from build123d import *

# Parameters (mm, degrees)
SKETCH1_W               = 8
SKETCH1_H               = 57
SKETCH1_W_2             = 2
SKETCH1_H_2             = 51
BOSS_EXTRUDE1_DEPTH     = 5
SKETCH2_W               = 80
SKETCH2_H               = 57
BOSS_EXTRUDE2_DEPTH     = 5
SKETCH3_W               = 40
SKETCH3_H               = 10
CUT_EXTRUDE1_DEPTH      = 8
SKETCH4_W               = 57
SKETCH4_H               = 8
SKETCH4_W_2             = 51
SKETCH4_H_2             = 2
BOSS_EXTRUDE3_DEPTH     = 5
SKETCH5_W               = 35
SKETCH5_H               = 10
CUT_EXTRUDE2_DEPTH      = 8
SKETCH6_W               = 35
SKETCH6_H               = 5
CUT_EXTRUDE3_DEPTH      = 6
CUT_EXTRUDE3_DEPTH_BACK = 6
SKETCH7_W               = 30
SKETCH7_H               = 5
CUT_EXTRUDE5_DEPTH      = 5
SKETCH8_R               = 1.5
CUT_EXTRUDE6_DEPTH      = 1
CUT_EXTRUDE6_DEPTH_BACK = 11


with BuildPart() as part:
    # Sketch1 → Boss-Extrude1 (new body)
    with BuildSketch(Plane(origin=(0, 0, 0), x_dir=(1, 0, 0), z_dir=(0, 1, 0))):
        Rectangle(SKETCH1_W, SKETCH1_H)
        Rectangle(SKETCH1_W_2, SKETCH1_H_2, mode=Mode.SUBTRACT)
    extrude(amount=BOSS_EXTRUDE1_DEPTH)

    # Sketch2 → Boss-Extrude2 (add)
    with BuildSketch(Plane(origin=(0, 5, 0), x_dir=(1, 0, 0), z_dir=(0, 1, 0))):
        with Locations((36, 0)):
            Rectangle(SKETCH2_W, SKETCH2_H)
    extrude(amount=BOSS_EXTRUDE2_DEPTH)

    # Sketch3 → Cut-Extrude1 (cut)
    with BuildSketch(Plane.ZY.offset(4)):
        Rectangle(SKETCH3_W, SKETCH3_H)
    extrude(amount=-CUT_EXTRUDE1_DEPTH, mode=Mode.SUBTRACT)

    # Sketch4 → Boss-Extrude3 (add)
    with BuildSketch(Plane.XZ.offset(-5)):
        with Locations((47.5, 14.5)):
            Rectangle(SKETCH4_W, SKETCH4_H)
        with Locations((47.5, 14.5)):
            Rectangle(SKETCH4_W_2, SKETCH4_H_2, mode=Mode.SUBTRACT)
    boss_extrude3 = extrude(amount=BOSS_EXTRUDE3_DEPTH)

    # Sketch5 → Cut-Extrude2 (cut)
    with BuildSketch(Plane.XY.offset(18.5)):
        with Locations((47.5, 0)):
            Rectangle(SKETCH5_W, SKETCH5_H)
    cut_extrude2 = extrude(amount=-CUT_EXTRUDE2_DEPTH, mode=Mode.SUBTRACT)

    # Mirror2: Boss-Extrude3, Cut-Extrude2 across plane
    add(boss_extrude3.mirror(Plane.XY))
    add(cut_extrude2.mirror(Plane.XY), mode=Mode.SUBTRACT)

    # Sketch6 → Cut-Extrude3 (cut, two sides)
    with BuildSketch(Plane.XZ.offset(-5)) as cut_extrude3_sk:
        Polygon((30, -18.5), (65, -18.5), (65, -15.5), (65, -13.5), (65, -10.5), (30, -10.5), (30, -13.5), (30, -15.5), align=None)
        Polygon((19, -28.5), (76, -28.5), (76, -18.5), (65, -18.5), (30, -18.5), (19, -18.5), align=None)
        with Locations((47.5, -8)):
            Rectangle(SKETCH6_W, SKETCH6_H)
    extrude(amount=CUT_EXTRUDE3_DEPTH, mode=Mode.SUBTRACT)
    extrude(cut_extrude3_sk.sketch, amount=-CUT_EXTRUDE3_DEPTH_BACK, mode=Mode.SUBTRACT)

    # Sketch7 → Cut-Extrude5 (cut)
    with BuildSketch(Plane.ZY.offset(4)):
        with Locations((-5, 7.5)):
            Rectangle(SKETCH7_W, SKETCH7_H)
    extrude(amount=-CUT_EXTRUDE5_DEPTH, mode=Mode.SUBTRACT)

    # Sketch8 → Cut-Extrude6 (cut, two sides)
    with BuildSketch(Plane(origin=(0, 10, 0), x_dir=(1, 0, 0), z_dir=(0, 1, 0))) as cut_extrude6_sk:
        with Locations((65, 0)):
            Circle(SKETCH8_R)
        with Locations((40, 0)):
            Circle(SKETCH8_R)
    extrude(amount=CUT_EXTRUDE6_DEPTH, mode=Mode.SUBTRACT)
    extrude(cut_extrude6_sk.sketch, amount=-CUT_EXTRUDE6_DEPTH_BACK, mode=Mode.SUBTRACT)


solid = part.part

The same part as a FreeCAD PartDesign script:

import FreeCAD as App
import Part
import Sketcher
Q = App.Units.Quantity

doc = App.newDocument("Part")
body = doc.addObject("PartDesign::Body", "Body")

# Sketch on XZ plane
sketch1 = body.newObject("Sketcher::SketchObject", "Sketch")
sketch1.AttachmentSupport = (doc.getObject("XZ_Plane"), [""])
sketch1.MapMode = "FlatFace"
sketch1.addGeometry(Part.LineSegment(App.Vector(-4, -28.5, 0), App.Vector(-4, 28.5, 0)), False)
sketch1.addGeometry(Part.LineSegment(App.Vector(-4, 28.5, 0), App.Vector(4, 28.5, 0)), False)
sketch1.addGeometry(Part.LineSegment(App.Vector(4, 28.5, 0), App.Vector(4, -28.5, 0)), False)
sketch1.addGeometry(Part.LineSegment(App.Vector(4, -28.5, 0), App.Vector(-4, -28.5, 0)), False)
sketch1.addGeometry(Part.LineSegment(App.Vector(1, 25.5, 0), App.Vector(-1, 25.5, 0)), False)
sketch1.addGeometry(Part.LineSegment(App.Vector(-1, 25.5, 0), App.Vector(-1, -25.5, 0)), False)
sketch1.addGeometry(Part.LineSegment(App.Vector(-1, -25.5, 0), App.Vector(1, -25.5, 0)), False)
sketch1.addGeometry(Part.LineSegment(App.Vector(1, -25.5, 0), App.Vector(1, 25.5, 0)), False)
sketch1.addConstraint(Sketcher.Constraint("Coincident", 0, 2, 1, 1))
sketch1.addConstraint(Sketcher.Constraint("Coincident", 1, 2, 2, 1))
sketch1.addConstraint(Sketcher.Constraint("Coincident", 2, 2, 3, 1))
sketch1.addConstraint(Sketcher.Constraint("Coincident", 3, 2, 0, 1))
sketch1.addConstraint(Sketcher.Constraint("Coincident", 4, 2, 5, 1))
sketch1.addConstraint(Sketcher.Constraint("Coincident", 5, 2, 6, 1))
sketch1.addConstraint(Sketcher.Constraint("Coincident", 6, 2, 7, 1))
sketch1.addConstraint(Sketcher.Constraint("Coincident", 7, 2, 4, 1))
sketch1.addConstraint(Sketcher.Constraint("Vertical", 0))
sketch1.addConstraint(Sketcher.Constraint("Horizontal", 1))
sketch1.addConstraint(Sketcher.Constraint("Vertical", 2))
sketch1.addConstraint(Sketcher.Constraint("Horizontal", 3))
sketch1.addConstraint(Sketcher.Constraint("Horizontal", 4))
sketch1.addConstraint(Sketcher.Constraint("Vertical", 5))
sketch1.addConstraint(Sketcher.Constraint("Horizontal", 6))
sketch1.addConstraint(Sketcher.Constraint("Vertical", 7))
sketch1.addConstraint(Sketcher.Constraint("Symmetric", 0, 2, 2, 2, -1, 1))
sketch1.addConstraint(Sketcher.Constraint("Symmetric", 4, 2, 6, 2, -1, 1))
sketch1.addConstraint(Sketcher.Constraint("DistanceX", 1, 1, 1, 2, Q("8 mm")))
sketch1.addConstraint(Sketcher.Constraint("DistanceX", 4, 2, 4, 1, Q("2 mm")))
sketch1.addConstraint(Sketcher.Constraint("DistanceY", 0, 1, 0, 2, Q("57 mm")))
sketch1.addConstraint(Sketcher.Constraint("DistanceY", 5, 2, 5, 1, Q("51 mm")))
pad1 = body.newObject("PartDesign::Pad", "Pad")
pad1.Profile = sketch1
pad1.Length = 5
pad1.Reversed = True

# Sketch on XZ plane
sketch2 = body.newObject("Sketcher::SketchObject", "Sketch001")
sketch2.AttachmentSupport = (doc.getObject("XZ_Plane"), [""])
sketch2.MapMode = "FlatFace"
sketch2.AttachmentOffset = App.Placement(App.Vector(0, 0, -5), App.Rotation())
sketch2.addGeometry(Part.LineSegment(App.Vector(-4, -28.5, 0), App.Vector(-4, 28.5, 0)), False)
sketch2.addGeometry(Part.LineSegment(App.Vector(-4, 28.5, 0), App.Vector(76, 28.5, 0)), False)
sketch2.addGeometry(Part.LineSegment(App.Vector(76, 28.5, 0), App.Vector(76, -28.5, 0)), False)
sketch2.addGeometry(Part.LineSegment(App.Vector(76, -28.5, 0), App.Vector(-4, -28.5, 0)), False)
sketch2.addConstraint(Sketcher.Constraint("Coincident", 0, 2, 1, 1))
sketch2.addConstraint(Sketcher.Constraint("Coincident", 1, 2, 2, 1))
sketch2.addConstraint(Sketcher.Constraint("Coincident", 2, 2, 3, 1))
sketch2.addConstraint(Sketcher.Constraint("Coincident", 3, 2, 0, 1))
sketch2.addConstraint(Sketcher.Constraint("Vertical", 0))
sketch2.addConstraint(Sketcher.Constraint("Horizontal", 1))
sketch2.addConstraint(Sketcher.Constraint("Vertical", 2))
sketch2.addConstraint(Sketcher.Constraint("Horizontal", 3))
sketch2.addConstraint(Sketcher.Constraint("DistanceX", 1, 1, 1, 2, Q("80 mm")))
sketch2.addConstraint(Sketcher.Constraint("DistanceY", 0, 1, 0, 2, Q("57 mm")))
sketch2.addConstraint(Sketcher.Constraint("DistanceX", 0, 2, -1, 1, Q("4 mm")))
sketch2.addConstraint(Sketcher.Constraint("DistanceY", -1, 1, 0, 2, Q("28.5 mm")))
pad2 = body.newObject("PartDesign::Pad", "Pad001")
pad2.Profile = sketch2
pad2.Length = 5
pad2.Reversed = True

# Sketch on YZ plane
sketch3 = body.newObject("Sketcher::SketchObject", "Sketch002")
sketch3.AttachmentSupport = (doc.getObject("YZ_Plane"), [""])
sketch3.MapMode = "FlatFace"
sketch3.AttachmentOffset = App.Placement(App.Vector(0, 0, -4), App.Rotation())
sketch3.addGeometry(Part.LineSegment(App.Vector(5, -20, 0), App.Vector(-5, -20, 0)), False)
sketch3.addGeometry(Part.LineSegment(App.Vector(-5, -20, 0), App.Vector(-5, 20, 0)), False)
sketch3.addGeometry(Part.LineSegment(App.Vector(-5, 20, 0), App.Vector(5, 20, 0)), False)
sketch3.addGeometry(Part.LineSegment(App.Vector(5, 20, 0), App.Vector(5, -20, 0)), False)
sketch3.addConstraint(Sketcher.Constraint("Coincident", 0, 2, 1, 1))
sketch3.addConstraint(Sketcher.Constraint("Coincident", 1, 2, 2, 1))
sketch3.addConstraint(Sketcher.Constraint("Coincident", 2, 2, 3, 1))
sketch3.addConstraint(Sketcher.Constraint("Coincident", 3, 2, 0, 1))
sketch3.addConstraint(Sketcher.Constraint("Horizontal", 0))
sketch3.addConstraint(Sketcher.Constraint("Vertical", 1))
sketch3.addConstraint(Sketcher.Constraint("Horizontal", 2))
sketch3.addConstraint(Sketcher.Constraint("Vertical", 3))
sketch3.addConstraint(Sketcher.Constraint("Symmetric", 0, 2, 2, 2, -1, 1))
sketch3.addConstraint(Sketcher.Constraint("DistanceX", 0, 2, 0, 1, Q("10 mm")))
sketch3.addConstraint(Sketcher.Constraint("DistanceY", 1, 1, 1, 2, Q("40 mm")))
pocket1 = body.newObject("PartDesign::Pocket", "Pocket")
pocket1.Profile = sketch3
pocket1.Length = 8
pocket1.Reversed = True

# Sketch on XZ plane
sketch4 = body.newObject("Sketcher::SketchObject", "Sketch003")
sketch4.AttachmentSupport = (doc.getObject("XZ_Plane"), [""])
sketch4.MapMode = "FlatFace"
sketch4.AttachmentOffset = App.Placement(App.Vector(0, 0, -5), App.Rotation())
sketch4.addGeometry(Part.LineSegment(App.Vector(19, 18.5, 0), App.Vector(19, 10.5, 0)), False)
sketch4.addGeometry(Part.LineSegment(App.Vector(19, 10.5, 0), App.Vector(76, 10.5, 0)), False)
sketch4.addGeometry(Part.LineSegment(App.Vector(76, 10.5, 0), App.Vector(76, 18.5, 0)), False)
sketch4.addGeometry(Part.LineSegment(App.Vector(76, 18.5, 0), App.Vector(19, 18.5, 0)), False)
sketch4.addGeometry(Part.LineSegment(App.Vector(73, 13.5, 0), App.Vector(22, 13.5, 0)), False)
sketch4.addGeometry(Part.LineSegment(App.Vector(22, 13.5, 0), App.Vector(22, 15.5, 0)), False)
sketch4.addGeometry(Part.LineSegment(App.Vector(22, 15.5, 0), App.Vector(73, 15.5, 0)), False)
sketch4.addGeometry(Part.LineSegment(App.Vector(73, 15.5, 0), App.Vector(73, 13.5, 0)), False)
sketch4.addConstraint(Sketcher.Constraint("Coincident", 0, 2, 1, 1))
sketch4.addConstraint(Sketcher.Constraint("Coincident", 1, 2, 2, 1))
sketch4.addConstraint(Sketcher.Constraint("Coincident", 2, 2, 3, 1))
sketch4.addConstraint(Sketcher.Constraint("Coincident", 3, 2, 0, 1))
sketch4.addConstraint(Sketcher.Constraint("Coincident", 4, 2, 5, 1))
sketch4.addConstraint(Sketcher.Constraint("Coincident", 5, 2, 6, 1))
sketch4.addConstraint(Sketcher.Constraint("Coincident", 6, 2, 7, 1))
sketch4.addConstraint(Sketcher.Constraint("Coincident", 7, 2, 4, 1))
sketch4.addConstraint(Sketcher.Constraint("Vertical", 0))
sketch4.addConstraint(Sketcher.Constraint("Horizontal", 1))
sketch4.addConstraint(Sketcher.Constraint("Vertical", 2))
sketch4.addConstraint(Sketcher.Constraint("Horizontal", 3))
sketch4.addConstraint(Sketcher.Constraint("Horizontal", 4))
sketch4.addConstraint(Sketcher.Constraint("Vertical", 5))
sketch4.addConstraint(Sketcher.Constraint("Horizontal", 6))
sketch4.addConstraint(Sketcher.Constraint("Vertical", 7))
sketch4.addConstraint(Sketcher.Constraint("DistanceX", 1, 1, 1, 2, Q("57 mm")))
sketch4.addConstraint(Sketcher.Constraint("DistanceX", 4, 2, 4, 1, Q("51 mm")))
sketch4.addConstraint(Sketcher.Constraint("DistanceY", 0, 2, 0, 1, Q("8 mm")))
sketch4.addConstraint(Sketcher.Constraint("DistanceY", 5, 1, 5, 2, Q("2 mm")))
sketch4.addConstraint(Sketcher.Constraint("DistanceX", -1, 1, 0, 2, Q("19 mm")))
sketch4.addConstraint(Sketcher.Constraint("DistanceX", -1, 1, 4, 2, Q("22 mm")))
sketch4.addConstraint(Sketcher.Constraint("DistanceY", 0, 2, 4, 2, Q("3 mm")))
sketch4.addConstraint(Sketcher.Constraint("DistanceY", -1, 1, 0, 2, Q("10.5 mm")))
pad3 = body.newObject("PartDesign::Pad", "Pad002")
pad3.Profile = sketch4
pad3.Length = 5

# Sketch on XY plane
sketch5 = body.newObject("Sketcher::SketchObject", "Sketch004")
sketch5.AttachmentSupport = (doc.getObject("XY_Plane"), [""])
sketch5.MapMode = "FlatFace"
sketch5.AttachmentOffset = App.Placement(App.Vector(0, 0, 18.5), App.Rotation())
sketch5.addGeometry(Part.LineSegment(App.Vector(30, 5, 0), App.Vector(30, -5, 0)), False)
sketch5.addGeometry(Part.LineSegment(App.Vector(30, -5, 0), App.Vector(65, -5, 0)), False)
sketch5.addGeometry(Part.LineSegment(App.Vector(65, -5, 0), App.Vector(65, 5, 0)), False)
sketch5.addGeometry(Part.LineSegment(App.Vector(65, 5, 0), App.Vector(30, 5, 0)), False)
sketch5.addConstraint(Sketcher.Constraint("Coincident", 0, 2, 1, 1))
sketch5.addConstraint(Sketcher.Constraint("Coincident", 1, 2, 2, 1))
sketch5.addConstraint(Sketcher.Constraint("Coincident", 2, 2, 3, 1))
sketch5.addConstraint(Sketcher.Constraint("Coincident", 3, 2, 0, 1))
sketch5.addConstraint(Sketcher.Constraint("Vertical", 0))
sketch5.addConstraint(Sketcher.Constraint("Horizontal", 1))
sketch5.addConstraint(Sketcher.Constraint("Vertical", 2))
sketch5.addConstraint(Sketcher.Constraint("Horizontal", 3))
sketch5.addConstraint(Sketcher.Constraint("DistanceX", 1, 1, 1, 2, Q("35 mm")))
sketch5.addConstraint(Sketcher.Constraint("DistanceY", 0, 2, 0, 1, Q("10 mm")))
sketch5.addConstraint(Sketcher.Constraint("DistanceX", -1, 1, 0, 2, Q("30 mm")))
sketch5.addConstraint(Sketcher.Constraint("DistanceY", 0, 2, -1, 1, Q("5 mm")))
pocket2 = body.newObject("PartDesign::Pocket", "Pocket001")
pocket2.Profile = sketch5
pocket2.Length = 8
doc.recompute()

mirrored = body.newObject("PartDesign::Mirrored", "Mirrored")
mirrored.Originals = [pad3, pocket2]
mirrored.MirrorPlane = (doc.getObject("XY_Plane"), [""])
body.Tip = mirrored

# Sketch on XZ plane
sketch6 = body.newObject("Sketcher::SketchObject", "Sketch005")
sketch6.AttachmentSupport = (doc.getObject("XZ_Plane"), [""])
sketch6.MapMode = "FlatFace"
sketch6.AttachmentOffset = App.Placement(App.Vector(0, 0, -5), App.Rotation())
sketch6.addGeometry(Part.LineSegment(App.Vector(65, -18.5, 0), App.Vector(65, -5.5, 0)), False)
sketch6.addGeometry(Part.LineSegment(App.Vector(65, -5.5, 0), App.Vector(30, -5.5, 0)), False)
sketch6.addGeometry(Part.LineSegment(App.Vector(30, -5.5, 0), App.Vector(30, -18.5, 0)), False)
sketch6.addGeometry(Part.LineSegment(App.Vector(30, -18.5, 0), App.Vector(19, -18.5, 0)), False)
sketch6.addGeometry(Part.LineSegment(App.Vector(19, -18.5, 0), App.Vector(19, -28.5, 0)), False)
sketch6.addGeometry(Part.LineSegment(App.Vector(19, -28.5, 0), App.Vector(76, -28.5, 0)), False)
sketch6.addGeometry(Part.LineSegment(App.Vector(76, -28.5, 0), App.Vector(76, -18.5, 0)), False)
sketch6.addGeometry(Part.LineSegment(App.Vector(76, -18.5, 0), App.Vector(65, -18.5, 0)), False)
sketch6.addConstraint(Sketcher.Constraint("Coincident", 0, 2, 1, 1))
sketch6.addConstraint(Sketcher.Constraint("Coincident", 1, 2, 2, 1))
sketch6.addConstraint(Sketcher.Constraint("Coincident", 2, 2, 3, 1))
sketch6.addConstraint(Sketcher.Constraint("Coincident", 3, 2, 4, 1))
sketch6.addConstraint(Sketcher.Constraint("Coincident", 4, 2, 5, 1))
sketch6.addConstraint(Sketcher.Constraint("Coincident", 5, 2, 6, 1))
sketch6.addConstraint(Sketcher.Constraint("Coincident", 6, 2, 7, 1))
sketch6.addConstraint(Sketcher.Constraint("Coincident", 7, 2, 0, 1))
sketch6.addConstraint(Sketcher.Constraint("Vertical", 0))
sketch6.addConstraint(Sketcher.Constraint("Horizontal", 1))
sketch6.addConstraint(Sketcher.Constraint("Vertical", 2))
sketch6.addConstraint(Sketcher.Constraint("Horizontal", 3))
sketch6.addConstraint(Sketcher.Constraint("Vertical", 4))
sketch6.addConstraint(Sketcher.Constraint("Horizontal", 5))
sketch6.addConstraint(Sketcher.Constraint("Vertical", 6))
sketch6.addConstraint(Sketcher.Constraint("Horizontal", 7))
sketch6.addConstraint(Sketcher.Constraint("Horizontal", 3, 2, 6, 2))
sketch6.addConstraint(Sketcher.Constraint("Equal", 3, 7))
sketch6.addConstraint(Sketcher.Constraint("DistanceX", 1, 2, 1, 1, Q("35 mm")))
sketch6.addConstraint(Sketcher.Constraint("DistanceX", 3, 2, 3, 1, Q("11 mm")))
sketch6.addConstraint(Sketcher.Constraint("DistanceY", 0, 1, 0, 2, Q("13 mm")))
sketch6.addConstraint(Sketcher.Constraint("DistanceY", 4, 2, 4, 1, Q("10 mm")))
sketch6.addConstraint(Sketcher.Constraint("DistanceX", -1, 1, 0, 2, Q("65 mm")))
sketch6.addConstraint(Sketcher.Constraint("DistanceY", 0, 2, -1, 1, Q("5.5 mm")))
pocket3 = body.newObject("PartDesign::Pocket", "Pocket002")
pocket3.Profile = sketch6
pocket3.Type = "ThroughAll"
pocket3.Midplane = True

# Sketch on YZ plane
sketch7 = body.newObject("Sketcher::SketchObject", "Sketch006")
sketch7.AttachmentSupport = (doc.getObject("YZ_Plane"), [""])
sketch7.MapMode = "FlatFace"
sketch7.AttachmentOffset = App.Placement(App.Vector(0, 0, -4), App.Rotation())
sketch7.addGeometry(Part.LineSegment(App.Vector(10, -20, 0), App.Vector(5, -20, 0)), False)
sketch7.addGeometry(Part.LineSegment(App.Vector(5, -20, 0), App.Vector(5, 10, 0)), False)
sketch7.addGeometry(Part.LineSegment(App.Vector(5, 10, 0), App.Vector(10, 10, 0)), False)
sketch7.addGeometry(Part.LineSegment(App.Vector(10, 10, 0), App.Vector(10, -20, 0)), False)
sketch7.addConstraint(Sketcher.Constraint("Coincident", 0, 2, 1, 1))
sketch7.addConstraint(Sketcher.Constraint("Coincident", 1, 2, 2, 1))
sketch7.addConstraint(Sketcher.Constraint("Coincident", 2, 2, 3, 1))
sketch7.addConstraint(Sketcher.Constraint("Coincident", 3, 2, 0, 1))
sketch7.addConstraint(Sketcher.Constraint("Horizontal", 0))
sketch7.addConstraint(Sketcher.Constraint("Vertical", 1))
sketch7.addConstraint(Sketcher.Constraint("Horizontal", 2))
sketch7.addConstraint(Sketcher.Constraint("Vertical", 3))
sketch7.addConstraint(Sketcher.Constraint("DistanceX", 0, 2, 0, 1, Q("5 mm")))
sketch7.addConstraint(Sketcher.Constraint("DistanceY", 1, 1, 1, 2, Q("30 mm")))
sketch7.addConstraint(Sketcher.Constraint("DistanceX", -1, 1, 0, 2, Q("5 mm")))
sketch7.addConstraint(Sketcher.Constraint("DistanceY", 0, 2, -1, 1, Q("20 mm")))
pocket4 = body.newObject("PartDesign::Pocket", "Pocket003")
pocket4.Profile = sketch7
pocket4.Length = 5
pocket4.Reversed = True

# Sketch on XZ plane
sketch8 = body.newObject("Sketcher::SketchObject", "Sketch007")
sketch8.AttachmentSupport = (doc.getObject("XZ_Plane"), [""])
sketch8.MapMode = "FlatFace"
sketch8.AttachmentOffset = App.Placement(App.Vector(0, 0, -10), App.Rotation())
sketch8.addGeometry(Part.Circle(App.Vector(65, 0, 0), App.Vector(0, 0, 1), 1.5), False)
sketch8.addGeometry(Part.Circle(App.Vector(40, 0, 0), App.Vector(0, 0, 1), 1.5), False)
sketch8.addConstraint(Sketcher.Constraint("Equal", 0, 1))
sketch8.addConstraint(Sketcher.Constraint("PointOnObject", 0, 3, -1))
sketch8.addConstraint(Sketcher.Constraint("PointOnObject", 1, 3, -1))
sketch8.addConstraint(Sketcher.Constraint("Diameter", 0, Q("3 mm")))
sketch8.addConstraint(Sketcher.Constraint("DistanceX", -1, 1, 0, 3, Q("65 mm")))
sketch8.addConstraint(Sketcher.Constraint("DistanceX", -1, 1, 1, 3, Q("40 mm")))
pocket5 = body.newObject("PartDesign::Pocket", "Pocket004")
pocket5.Profile = sketch8
pocket5.Type = "ThroughAll"
pocket5.Midplane = True

doc.recompute()
